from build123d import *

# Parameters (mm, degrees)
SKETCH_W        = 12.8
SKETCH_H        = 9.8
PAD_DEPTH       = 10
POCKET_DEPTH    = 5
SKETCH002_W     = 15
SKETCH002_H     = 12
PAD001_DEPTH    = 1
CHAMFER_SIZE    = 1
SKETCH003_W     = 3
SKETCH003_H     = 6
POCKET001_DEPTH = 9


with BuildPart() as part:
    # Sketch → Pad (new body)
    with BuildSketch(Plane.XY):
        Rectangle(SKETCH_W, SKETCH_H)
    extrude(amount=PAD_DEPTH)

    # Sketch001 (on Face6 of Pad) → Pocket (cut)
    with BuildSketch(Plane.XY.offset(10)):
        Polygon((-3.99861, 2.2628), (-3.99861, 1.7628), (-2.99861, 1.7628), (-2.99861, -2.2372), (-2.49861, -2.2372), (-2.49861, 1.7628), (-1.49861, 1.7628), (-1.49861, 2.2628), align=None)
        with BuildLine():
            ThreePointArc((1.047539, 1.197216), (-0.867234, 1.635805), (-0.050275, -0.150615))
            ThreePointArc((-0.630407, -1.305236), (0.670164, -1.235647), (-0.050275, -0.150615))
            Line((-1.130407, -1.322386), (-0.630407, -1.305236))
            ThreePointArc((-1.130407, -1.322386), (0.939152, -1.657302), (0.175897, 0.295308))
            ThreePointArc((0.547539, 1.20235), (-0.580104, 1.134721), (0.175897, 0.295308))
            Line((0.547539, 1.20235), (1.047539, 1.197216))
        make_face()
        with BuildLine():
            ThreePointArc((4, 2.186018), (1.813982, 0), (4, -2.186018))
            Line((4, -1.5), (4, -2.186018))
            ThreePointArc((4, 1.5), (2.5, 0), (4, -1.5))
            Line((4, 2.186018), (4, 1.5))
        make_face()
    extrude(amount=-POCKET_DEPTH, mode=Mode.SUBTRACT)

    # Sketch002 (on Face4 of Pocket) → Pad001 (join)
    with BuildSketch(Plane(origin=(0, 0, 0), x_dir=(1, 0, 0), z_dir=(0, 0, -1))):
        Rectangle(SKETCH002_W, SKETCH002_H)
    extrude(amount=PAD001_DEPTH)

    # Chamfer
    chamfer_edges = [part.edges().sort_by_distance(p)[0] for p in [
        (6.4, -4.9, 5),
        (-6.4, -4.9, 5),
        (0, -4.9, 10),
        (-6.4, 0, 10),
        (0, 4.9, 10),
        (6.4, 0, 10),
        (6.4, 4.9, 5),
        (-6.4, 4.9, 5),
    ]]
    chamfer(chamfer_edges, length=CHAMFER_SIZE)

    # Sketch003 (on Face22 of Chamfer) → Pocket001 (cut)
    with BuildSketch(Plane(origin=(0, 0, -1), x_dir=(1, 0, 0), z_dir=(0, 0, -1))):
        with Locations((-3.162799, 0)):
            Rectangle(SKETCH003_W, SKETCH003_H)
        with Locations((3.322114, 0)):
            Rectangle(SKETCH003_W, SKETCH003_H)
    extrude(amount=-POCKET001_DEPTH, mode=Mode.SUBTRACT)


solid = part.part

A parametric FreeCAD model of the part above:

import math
import FreeCAD as App
import Part
import Sketcher
from FreeCAD import Vector


def edges_at(feature, points):
    """Names of the edges that pass closest to the given points."""
    edges = feature.Shape.Edges
    near = lambda p: min(range(len(edges)), key=lambda i: edges[i].distToShape(Part.Vertex(*p))[0])
    return sorted({f"Edge{near(p) + 1}" for p in points})


def add_polygon(sketch, points):
    """Adds a closed chain of lines whose ends are joined by coincident constraints."""
    first, n = sketch.GeometryCount, len(points)
    for a, b in zip(points, points[1:] + points[:1]):
        sketch.addGeometry(Part.LineSegment(App.Vector(*a, 0), App.Vector(*b, 0)), False)
    for i in range(n):
        sketch.addConstraint(Sketcher.Constraint("Coincident", first + i, 2, first + (i + 1) % n, 1))

doc = App.newDocument("Part")
body = doc.addObject("PartDesign::Body", "Body")

sketch1 = body.newObject("Sketcher::SketchObject", "Sketch")
sketch1.AttachmentSupport = (doc.getObject("XY_Plane"), [""])
sketch1.MapMode = "FlatFace"
add_polygon(sketch1, [(-6, 5), (-6, -5), (6, -5), (6, 5)])
sketch1.addConstraint(Sketcher.Constraint("Vertical", 0))
sketch1.addConstraint(Sketcher.Constraint("Horizontal", 1))
sketch1.addConstraint(Sketcher.Constraint("Vertical", 2))
sketch1.addConstraint(Sketcher.Constraint("Horizontal", 3))
sketch1.addConstraint(Sketcher.Constraint("Symmetric", 0, 2, 2, 2, -1, 1))
sketch1.addConstraint(Sketcher.Constraint("DistanceX", 1, 1, 1, 2, 12.8))
sketch1.addConstraint(Sketcher.Constraint("DistanceY", 0, 2, 0, 1, 9.8))
pad1 = body.newObject("PartDesign::Pad", "Pad")
pad1.Profile = sketch1
pad1.Length = 10

sketch2 = body.newObject("Sketcher::SketchObject", "Sketch001")
sketch2.AttachmentSupport = (doc.getObject("XY_Plane"), [""])
sketch2.MapMode = "FlatFace"
sketch2.AttachmentOffset = App.Placement(Vector(0, 0, 10), App.Rotation())
add_polygon(sketch2, [(-4, 2.3), (-4, 1.8), (-3, 1.8), (-3, -2.2), (-2.5, -2.2), (-2.5, 1.8), (-1.5, 1.8), (-1.5, 2.3)])
sketch2.addGeometry(Part.ArcOfCircle(Part.Circle(Vector(0, 0.9, 0), Vector(0, 0, 1), 1.1), math.radians(13), math.radians(268)), False)
sketch2.addGeometry(Part.ArcOfCircle(Part.Circle(Vector(0, -0.9, 0), Vector(0, 0, 1), 0.7), math.radians(-147), math.radians(94)), False)
sketch2.addGeometry(Part.LineSegment(Vector(-0.6, -1.3, 0), Vector(-1.1, -1.3, 0)), False)
sketch2.addGeometry(Part.ArcOfCircle(Part.Circle(Vector(0, -0.9, 0), Vector(0, 0, 1), 1.2), math.radians(-159), math.radians(82)), False)
sketch2.addGeometry(Part.ArcOfCircle(Part.Circle(Vector(0, 0.9, 0), Vector(0, 0, 1), 0.6), math.radians(29), math.radians(286)), False)
sketch2.addGeometry(Part.LineSegment(Vector(0.5, 1.2, 0), Vector(1, 1.2, 0)), False)
sketch2.addGeometry(Part.ArcOfCircle(Part.Circle(Vector(4, 0, 0), Vector(0, 0, 1), 2.2), math.radians(90), math.radians(270)), False)
sketch2.addGeometry(Part.LineSegment(Vector(4, -2.2, 0), Vector(4, -1.5, 0)), False)
sketch2.addGeometry(Part.ArcOfCircle(Part.Circle(Vector(4, 0, 0), Vector(0, 0, 1), 1.5), math.radians(90), math.radians(270)), False)
sketch2.addGeometry(Part.LineSegment(Vector(4, 1.5, 0), Vector(4, 2.2, 0)), False)
sketch2.addConstraint(Sketcher.Constraint("Coincident", 8, 2, 9, 2))
sketch2.addConstraint(Sketcher.Constraint("Coincident", 9, 1, 10, 1))
sketch2.addConstraint(Sketcher.Constraint("Coincident", 10, 2, 11, 1))
sketch2.addConstraint(Sketcher.Constraint("Coincident", 11, 2, 12, 2))
sketch2.addConstraint(Sketcher.Constraint("Coincident", 12, 1, 13, 1))
sketch2.addConstraint(Sketcher.Constraint("Coincident", 13, 2, 8, 1))
sketch2.addConstraint(Sketcher.Constraint("Coincident", 14, 2, 15, 1))
sketch2.addConstraint(Sketcher.Constraint("Coincident", 15, 2, 16, 2))
sketch2.addConstraint(Sketcher.Constraint("Coincident", 16, 1, 17, 1))
sketch2.addConstraint(Sketcher.Constraint("Coincident", 17, 2, 14, 1))
sketch2.addConstraint(Sketcher.Constraint("Vertical", 0))
sketch2.addConstraint(Sketcher.Constraint("Horizontal", 1))
sketch2.addConstraint(Sketcher.Constraint("Vertical", 2))
sketch2.addConstraint(Sketcher.Constraint("Horizontal", 3))
sketch2.addConstraint(Sketcher.Constraint("Vertical", 4))
sketch2.addConstraint(Sketcher.Constraint("Horizontal", 5))
sketch2.addConstraint(Sketcher.Constraint("Vertical", 6))
sketch2.addConstraint(Sketcher.Constraint("Horizontal", 7))
sketch2.addConstraint(Sketcher.Constraint("Vertical", 15))
sketch2.addConstraint(Sketcher.Constraint("Vertical", 17))
sketch2.addConstraint(Sketcher.Constraint("Coincident", 11, 3, 9, 3))
sketch2.addConstraint(Sketcher.Constraint("Coincident", 16, 3, 14, 3))
sketch2.addConstraint(Sketcher.Constraint("Symmetric", 15, 2, 16, 1, -1))
sketch2.addConstraint(Sketcher.Constraint("PointOnObject", 9, 3, -2))
sketch2.addConstraint(Sketcher.Constraint("PointOnObject", 12, 3, -2))
sketch2.addConstraint(Sketcher.Constraint("Horizontal", 1, 2, 4, 2))
sketch2.addConstraint(Sketcher.Constraint("Vertical", 16, 3, 14, 2))
sketch2.addConstraint(Sketcher.Constraint("Equal", 1, 5))
sketch2.addConstraint(Sketcher.Constraint("Equal", 3, 0))
sketch2.addConstraint(Sketcher.Constraint("Radius", 16, 1.5))
sketch2.addConstraint(Sketcher.Constraint("DistanceX", 1, 1, 1, 2, 1.0))
sketch2.addConstraint(Sketcher.Constraint("DistanceY", 2, 2, 2, 1, 4.0))
sketch2.addConstraint(Sketcher.Constraint("Radius", 9, 0.75))
sketch2.addConstraint(Sketcher.Constraint("DistanceX", 3, 1, 3, 2, 0.5))
sketch2.addConstraint(Sketcher.Constraint("DistanceX", -1, 1, 14, 3, 4.0))
sketch2.addConstraint(Sketcher.Constraint("DistanceX", 10, 2, 9, 1, 0.5))
sketch2.addConstraint(Sketcher.Constraint("DistanceX", 12, 1, 13, 2, 0.5))
sketch2.addConstraint(Sketcher.Constraint("Radius", 11, 1.20712))
sketch2.addConstraint(Sketcher.Constraint("Radius", 12, 0.62691))
sketch2.addConstraint(Sketcher.Constraint("Radius", 8, 1.095227))
sketch2.addConstraint(Sketcher.Constraint("Radius", 14, 2.186018))
sketch2.addConstraint(Sketcher.Constraint("DistanceY", -1, 1, 0, 2, 1.7628))
sketch2.addConstraint(Sketcher.Constraint("DistanceY", 13, 2, 17, 2, 0.988802))
sketch2.addConstraint(Sketcher.Constraint("DistanceX", 0, 2, -1, 1, 3.99861))
sketch2.addConstraint(Sketcher.Constraint("DistanceY", -1, 1, 11, 2, 0.295308))
sketch2.addConstraint(Sketcher.Constraint("DistanceX", -1, 1, 12, 1, 0.547539))
sketch2.addConstraint(Sketcher.Constraint("DistanceY", -1, 1, 12, 1, 1.20235))
sketch2.addConstraint(Sketcher.Constraint("DistanceY", 8, 2, 12, 3, 1.04765))
sketch2.addConstraint(Sketcher.Constraint("DistanceY", 9, 1, 9, 3, 0.406308))
pocket1 = body.newObject("PartDesign::Pocket", "Pocket")
pocket1.Profile = sketch2
pocket1.Length = 5

sketch3 = body.newObject("Sketcher::SketchObject", "Sketch002")
sketch3.AttachmentSupport = (doc.getObject("XY_Plane"), [""])
sketch3.MapMode = "FlatFace"
add_polygon(sketch3, [(-8, -6), (-8, 6), (8, 6), (8, -6)])
sketch3.addConstraint(Sketcher.Constraint("Vertical", 0))
sketch3.addConstraint(Sketcher.Constraint("Horizontal", 1))
sketch3.addConstraint(Sketcher.Constraint("Vertical", 2))
sketch3.addConstraint(Sketcher.Constraint("Horizontal", 3))
sketch3.addConstraint(Sketcher.Constraint("Symmetric", 0, 2, 2, 2, -1, 1))
sketch3.addConstraint(Sketcher.Constraint("DistanceX", 1, 1, 1, 2, 15.0))
sketch3.addConstraint(Sketcher.Constraint("DistanceY", 0, 1, 0, 2, 12.0))
pad2 = body.newObject("PartDesign::Pad", "Pad001")
pad2.Profile = sketch3
pad2.Length = 1
pad2.Reversed = True
doc.recompute()

chamfer = body.newObject("PartDesign::Chamfer", "Chamfer")
chamfer.Base = (pad2, edges_at(pad2, [
    (6.4, -4.9, 5),
    (-6.4, -4.9, 5),
    (0, -4.9, 10),
    (-6.4, 0, 10),
    (0, 4.9, 10),
    (6.4, 0, 10),
    (6.4, 4.9, 5),
    (-6.4, 4.9, 5),
]))
chamfer.Size = 1

sketch4 = body.newObject("Sketcher::SketchObject", "Sketch003")
sketch4.AttachmentSupport = (doc.getObject("XY_Plane"), [""])
sketch4.MapMode = "FlatFace"
sketch4.AttachmentOffset = App.Placement(Vector(0, 0, -1), App.Rotation())
add_polygon(sketch4, [(-4.7, -3), (-4.7, 3), (-1.7, 3), (-1.7, -3)])
add_polygon(sketch4, [(1.8, -3), (1.8, 3), (4.8, 3), (4.8, -3)])
sketch4.addConstraint(Sketcher.Constraint("Vertical", 0))
sketch4.addConstraint(Sketcher.Constraint("Horizontal", 1))
sketch4.addConstraint(Sketcher.Constraint("Vertical", 2))
sketch4.addConstraint(Sketcher.Constraint("Horizontal", 3))
sketch4.addConstraint(Sketcher.Constraint("Vertical", 4))
sketch4.addConstraint(Sketcher.Constraint("Horizontal", 5))
sketch4.addConstraint(Sketcher.Constraint("Vertical", 6))
sketch4.addConstraint(Sketcher.Constraint("Horizontal", 7))
sketch4.addConstraint(Sketcher.Constraint("Horizontal", 1, 2, 4, 2))
sketch4.addConstraint(Sketcher.Constraint("Horizontal", 3, 2, 6, 2))
sketch4.addConstraint(Sketcher.Constraint("Equal", 3, 5))
sketch4.addConstraint(Sketcher.Constraint("DistanceX", 1, 1, 1, 2, 3.0))
sketch4.addConstraint(Sketcher.Constraint("DistanceY", 0, 1, 0, 2, 6.0))
sketch4.addConstraint(Sketcher.Constraint("DistanceY", -1, 1, 0, 2, 3.0))
sketch4.addConstraint(Sketcher.Constraint("DistanceX", 0, 2, -1, 1, 4.662799))
sketch4.addConstraint(Sketcher.Constraint("DistanceX", -1, 1, 4, 2, 1.822114))
pocket2 = body.newObject("PartDesign::Pocket", "Pocket001")
pocket2.Profile = sketch4
pocket2.Length = 9
pocket2.Reversed = True

doc.recompute()
